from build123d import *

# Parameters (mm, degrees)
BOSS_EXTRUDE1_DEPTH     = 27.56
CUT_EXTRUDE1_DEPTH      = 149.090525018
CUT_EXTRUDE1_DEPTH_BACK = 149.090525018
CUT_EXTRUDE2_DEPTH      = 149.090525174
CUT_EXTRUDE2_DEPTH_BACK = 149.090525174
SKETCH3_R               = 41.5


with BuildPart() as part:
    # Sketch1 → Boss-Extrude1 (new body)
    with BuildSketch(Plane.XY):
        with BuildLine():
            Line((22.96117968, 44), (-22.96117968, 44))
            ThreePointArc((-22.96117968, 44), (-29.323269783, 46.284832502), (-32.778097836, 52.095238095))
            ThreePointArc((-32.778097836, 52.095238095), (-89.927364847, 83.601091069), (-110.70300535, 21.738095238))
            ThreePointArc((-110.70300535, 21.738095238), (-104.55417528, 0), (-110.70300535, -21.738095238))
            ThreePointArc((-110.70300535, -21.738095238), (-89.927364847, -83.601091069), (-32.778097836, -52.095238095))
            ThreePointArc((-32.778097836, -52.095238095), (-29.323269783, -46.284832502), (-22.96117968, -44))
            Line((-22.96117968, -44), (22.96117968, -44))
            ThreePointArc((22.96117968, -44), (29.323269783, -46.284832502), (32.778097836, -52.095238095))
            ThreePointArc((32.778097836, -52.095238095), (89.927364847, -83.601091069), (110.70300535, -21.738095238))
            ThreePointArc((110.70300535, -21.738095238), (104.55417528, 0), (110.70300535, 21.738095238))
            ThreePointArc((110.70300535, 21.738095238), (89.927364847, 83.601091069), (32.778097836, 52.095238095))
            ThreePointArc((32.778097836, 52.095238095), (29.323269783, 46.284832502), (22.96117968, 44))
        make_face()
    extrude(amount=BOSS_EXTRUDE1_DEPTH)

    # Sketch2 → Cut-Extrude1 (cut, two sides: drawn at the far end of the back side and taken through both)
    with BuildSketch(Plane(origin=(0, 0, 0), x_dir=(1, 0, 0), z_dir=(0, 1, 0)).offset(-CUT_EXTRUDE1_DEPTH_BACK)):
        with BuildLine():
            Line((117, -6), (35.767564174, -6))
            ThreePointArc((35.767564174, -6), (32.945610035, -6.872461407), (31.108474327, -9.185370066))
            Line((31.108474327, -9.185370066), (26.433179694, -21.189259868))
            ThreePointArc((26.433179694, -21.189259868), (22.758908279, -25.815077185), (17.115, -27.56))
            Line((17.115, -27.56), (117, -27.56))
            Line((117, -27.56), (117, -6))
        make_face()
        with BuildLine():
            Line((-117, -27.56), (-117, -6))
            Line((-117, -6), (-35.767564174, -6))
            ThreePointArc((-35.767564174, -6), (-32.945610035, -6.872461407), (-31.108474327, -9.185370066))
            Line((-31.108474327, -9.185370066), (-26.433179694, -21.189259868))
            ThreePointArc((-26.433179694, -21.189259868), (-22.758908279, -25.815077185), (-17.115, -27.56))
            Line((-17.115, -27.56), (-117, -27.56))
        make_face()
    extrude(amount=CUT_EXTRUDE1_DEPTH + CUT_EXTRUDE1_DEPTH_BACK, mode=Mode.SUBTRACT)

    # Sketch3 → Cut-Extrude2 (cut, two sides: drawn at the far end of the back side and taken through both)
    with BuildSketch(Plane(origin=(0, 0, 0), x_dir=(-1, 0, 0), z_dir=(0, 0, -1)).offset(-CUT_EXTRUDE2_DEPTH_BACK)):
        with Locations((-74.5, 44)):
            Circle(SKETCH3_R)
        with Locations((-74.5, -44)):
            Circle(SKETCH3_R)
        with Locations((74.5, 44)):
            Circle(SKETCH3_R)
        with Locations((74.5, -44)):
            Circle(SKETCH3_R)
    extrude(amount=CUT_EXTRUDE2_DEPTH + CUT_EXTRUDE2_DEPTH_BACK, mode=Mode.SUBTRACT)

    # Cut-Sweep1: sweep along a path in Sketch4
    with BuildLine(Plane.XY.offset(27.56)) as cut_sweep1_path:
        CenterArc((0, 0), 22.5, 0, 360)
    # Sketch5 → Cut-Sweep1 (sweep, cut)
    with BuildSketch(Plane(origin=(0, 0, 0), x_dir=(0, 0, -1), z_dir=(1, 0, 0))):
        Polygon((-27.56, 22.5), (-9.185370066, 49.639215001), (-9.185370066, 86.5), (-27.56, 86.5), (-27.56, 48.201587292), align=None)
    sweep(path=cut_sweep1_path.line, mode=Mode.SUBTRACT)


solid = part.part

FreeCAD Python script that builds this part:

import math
import FreeCAD as App
import Part
import Sketcher
Q = App.Units.Quantity


def add_polygon(sketch, points):
    """Adds a closed chain of lines whose ends are joined by coincident constraints."""
    first, n = sketch.GeometryCount, len(points)
    for a, b in zip(points, points[1:] + points[:1]):
        sketch.addGeometry(Part.LineSegment(App.Vector(*a, 0), App.Vector(*b, 0)), False)
    for i in range(n):
        sketch.addConstraint(Sketcher.Constraint("Coincident", first + i, 2, first + (i + 1) % n, 1))

doc = App.newDocument("Part")
body = doc.addObject("PartDesign::Body", "Body")

# Sketch on XY plane
sketch1 = body.newObject("Sketcher::SketchObject", "Sketch")
sketch1.AttachmentSupport = (doc.getObject("XY_Plane"), [""])
sketch1.MapMode = "FlatFace"
sketch1.addGeometry([
    Part.LineSegment(App.Vector(23, 44, 0), App.Vector(-23, 44, 0)),  # 0
    Part.ArcOfCircle(Part.Circle(App.Vector(-23, 54, 0), App.Vector(0, 0, 1), 10), math.radians(-169), math.radians(-90)),  # 1
    Part.ArcOfCircle(Part.Circle(App.Vector(-74, 44, 0), App.Vector(0, 0, 1), 42), math.radians(11), math.radians(212)),  # 2
    Part.ArcOfCircle(Part.Circle(App.Vector(-146, 0, 0), App.Vector(0, 0, 1), 42), math.radians(-32), math.radians(32)),  # 3
    Part.ArcOfCircle(Part.Circle(App.Vector(-74, -44, 0), App.Vector(0, 0, 1), 42), math.radians(148), math.radians(349)),  # 4
    Part.ArcOfCircle(Part.Circle(App.Vector(-23, -54, 0), App.Vector(0, 0, 1), 10), math.radians(90), math.radians(169)),  # 5
    Part.LineSegment(App.Vector(-23, -44, 0), App.Vector(23, -44, 0)),  # 6
    Part.ArcOfCircle(Part.Circle(App.Vector(23, -54, 0), App.Vector(0, 0, 1), 10), math.radians(11), math.radians(90)),  # 7
    Part.ArcOfCircle(Part.Circle(App.Vector(74, -44, 0), App.Vector(0, 0, 1), 42), math.radians(-169), math.radians(32)),  # 8
    Part.ArcOfCircle(Part.Circle(App.Vector(146, 0, 0), App.Vector(0, 0, 1), 42), math.radians(148), math.radians(212)),  # 9
    Part.ArcOfCircle(Part.Circle(App.Vector(74, 44, 0), App.Vector(0, 0, 1), 42), math.radians(-32), math.radians(169)),  # 10
    Part.ArcOfCircle(Part.Circle(App.Vector(23, 54, 0), App.Vector(0, 0, 1), 10), math.radians(-90), math.radians(-11)),  # 11
], False)
sketch1.addConstraint([
    Sketcher.Constraint("Tangent", 0, 2, 1, 2),
    Sketcher.Constraint("Tangent", 1, 1, 2, 1),
    Sketcher.Constraint("Tangent", 2, 2, 3, 2),
    Sketcher.Constraint("Tangent", 3, 1, 4, 1),
    Sketcher.Constraint("Tangent", 4, 2, 5, 2),
    Sketcher.Constraint("Tangent", 5, 1, 6, 1),
    Sketcher.Constraint("Tangent", 6, 2, 7, 2),
    Sketcher.Constraint("Tangent", 7, 1, 8, 1),
    Sketcher.Constraint("Tangent", 8, 2, 9, 2),
    Sketcher.Constraint("Tangent", 9, 1, 10, 1),
    Sketcher.Constraint("Tangent", 10, 2, 11, 2),
    Sketcher.Constraint("Tangent", 11, 1, 0, 1),
    Sketcher.Constraint("Horizontal", 0),
    Sketcher.Constraint("Horizontal", 6),
    Sketcher.Constraint("Equal", 2, 4),
    Sketcher.Constraint("Equal", 1, 5),
    Sketcher.Constraint("Equal", 5, 7),
    Sketcher.Constraint("Equal", 4, 8),
    Sketcher.Constraint("Equal", 3, 9),
    Sketcher.Constraint("Equal", 8, 10),
    Sketcher.Constraint("Equal", 7, 11),
    Sketcher.Constraint("Symmetric", 1, 3, 7, 3, -1, 1),
    Sketcher.Constraint("Symmetric", 3, 3, 9, 3, -1, 1),
    Sketcher.Constraint("Symmetric", 4, 3, 8, 3, -2),
    Sketcher.Constraint("Horizontal", 2, 3, 10, 3),
    Sketcher.Constraint("Horizontal", 10, 3, 0, 2),
    Sketcher.Constraint("Radius", 1, Q("10 mm")),
    Sketcher.Constraint("Radius", 2, Q("42.5 mm")),
    Sketcher.Constraint("Radius", 3, Q("41.5 mm")),
    Sketcher.Constraint("DistanceY", -1, 1, 1, 3, Q("54 mm")),
    Sketcher.Constraint("DistanceX", 4, 3, 8, 3, Q("149 mm")),
])
pad1 = body.newObject("PartDesign::Pad", "Pad")
pad1.Profile = sketch1
pad1.Length = 27.56

# Sketch on XZ plane
sketch2 = body.newObject("Sketcher::SketchObject", "Sketch001")
sketch2.AttachmentSupport = (doc.getObject("XZ_Plane"), [""])
sketch2.MapMode = "FlatFace"
sketch2.addGeometry([
    Part.LineSegment(App.Vector(117, 6, 0), App.Vector(36, 6, 0)),  # 0
    Part.ArcOfCircle(Part.Circle(App.Vector(36, 11, 0), App.Vector(0, 0, 1), 5), math.radians(-159), math.radians(-90)),  # 1
    Part.LineSegment(App.Vector(31, 9, 0), App.Vector(26, 21, 0)),  # 2
    Part.ArcOfCircle(Part.Circle(App.Vector(17, 18, 0), App.Vector(0, 0, 1), 10), math.radians(21), math.radians(90)),  # 3
    Part.LineSegment(App.Vector(17, 28, 0), App.Vector(117, 28, 0)),  # 4
    Part.LineSegment(App.Vector(117, 28, 0), App.Vector(117, 6, 0)),  # 5
    Part.LineSegment(App.Vector(-117, 6, 0), App.Vector(-117, 28, 0)),  # 6
    Part.LineSegment(App.Vector(-117, 28, 0), App.Vector(-17, 28, 0)),  # 7
    Part.ArcOfCircle(Part.Circle(App.Vector(-17, 18, 0), App.Vector(0, 0, 1), 10), math.radians(90), math.radians(159)),  # 8
    Part.LineSegment(App.Vector(-26, 21, 0), App.Vector(-31, 9, 0)),  # 9
    Part.ArcOfCircle(Part.Circle(App.Vector(-36, 11, 0), App.Vector(0, 0, 1), 5), math.radians(-90), math.radians(-21)),  # 10
    Part.LineSegment(App.Vector(-36, 6, 0), App.Vector(-117, 6, 0)),  # 11
], False)
sketch2.addConstraint([
    Sketcher.Constraint("Tangent", 0, 2, 1, 2),
    Sketcher.Constraint("Tangent", 1, 1, 2, 1),
    Sketcher.Constraint("Tangent", 2, 2, 3, 1),
    Sketcher.Constraint("Tangent", 3, 2, 4, 1),
    Sketcher.Constraint("Coincident", 4, 2, 5, 1),
    Sketcher.Constraint("Coincident", 5, 2, 0, 1),
    Sketcher.Constraint("Coincident", 6, 2, 7, 1),
    Sketcher.Constraint("Tangent", 7, 2, 8, 1),
    Sketcher.Constraint("Tangent", 8, 2, 9, 1),
    Sketcher.Constraint("Tangent", 9, 2, 10, 2),
    Sketcher.Constraint("Tangent", 10, 1, 11, 1),
    Sketcher.Constraint("Coincident", 11, 2, 6, 1),
    Sketcher.Constraint("Horizontal", 0),
    Sketcher.Constraint("Horizontal", 4),
    Sketcher.Constraint("Vertical", 5),
    Sketcher.Constraint("Vertical", 6),
    Sketcher.Constraint("Horizontal", 7),
    Sketcher.Constraint("Horizontal", 11),
    Sketcher.Constraint("Equal", 3, 8),
    Sketcher.Constraint("Equal", 1, 10),
    Sketcher.Constraint("Symmetric", 3, 3, 8, 3, -2),
    Sketcher.Constraint("Symmetric", 1, 3, 10, 3, -2),
    Sketcher.Constraint("Equal", 4, 7),
    Sketcher.Constraint("Radius", 1, Q("5 mm")),
    Sketcher.Constraint("Radius", 3, Q("10 mm")),
    Sketcher.Constraint("DistanceY", -1, 1, 1, 3, Q("11 mm")),
    Sketcher.Constraint("DistanceX", -1, 1, 4, 2, Q("117 mm")),
    Sketcher.Constraint("DistanceY", 5, 2, 5, 1, Q("21.56 mm")),
    Sketcher.Constraint("Angle", 2, Q("111.28 deg")),
    Sketcher.Constraint("DistanceX", 4, 1, 4, 2, Q("99.885 mm")),
])
pocket1 = body.newObject("PartDesign::Pocket", "Pocket")
pocket1.Profile = sketch2
pocket1.Type = "ThroughAll"
pocket1.Midplane = True

# Sketch on XY plane
sketch3 = body.newObject("Sketcher::SketchObject", "Sketch002")
sketch3.AttachmentSupport = (doc.getObject("XY_Plane"), [""])
sketch3.MapMode = "FlatFace"
sketch3.addGeometry([
    Part.Circle(App.Vector(74, 44, 0), App.Vector(0, 0, 1), 42),
    Part.Circle(App.Vector(74, -44, 0), App.Vector(0, 0, 1), 42),
    Part.Circle(App.Vector(-74, 44, 0), App.Vector(0, 0, 1), 42),
    Part.Circle(App.Vector(-74, -44, 0), App.Vector(0, 0, 1), 42),
], False)
sketch3.addConstraint([
    Sketcher.Constraint("Equal", 0, 1),
    Sketcher.Constraint("Equal", 1, 2),
    Sketcher.Constraint("Equal", 2, 3),
    Sketcher.Constraint("Symmetric", 1, 3, 2, 3, -1, 1),
    Sketcher.Constraint("Symmetric", 0, 3, 3, 3, -1, 1),
    Sketcher.Constraint("Symmetric", 0, 3, 2, 3, -2),
    Sketcher.Constraint("Diameter", 0, Q("83 mm")),
    Sketcher.Constraint("DistanceY", -1, 1, 0, 3, Q("44 mm")),
    Sketcher.Constraint("DistanceX", 2, 3, 0, 3, Q("149 mm")),
])
pocket2 = body.newObject("PartDesign::Pocket", "Pocket001")
pocket2.Profile = sketch3
pocket2.Type = "ThroughAll"
pocket2.Midplane = True

# Sketch on YZ plane
sketch4 = body.newObject("Sketcher::SketchObject", "Sketch003")
sketch4.AttachmentSupport = (doc.getObject("YZ_Plane"), [""])
sketch4.MapMode = "FlatFace"
add_polygon(sketch4, [(22, 28), (50, 9), (86, 9), (86, 28)])  # lines 0-3
sketch4.addConstraint([
    Sketcher.Constraint("Horizontal", 1),
    Sketcher.Constraint("Vertical", 2),
    Sketcher.Constraint("Horizontal", 3),
    Sketcher.Constraint("DistanceX", 3, 2, 3, 1, Q("64 mm")),
    Sketcher.Constraint("Angle", 0, Q("-34.1 deg")),
    Sketcher.Constraint("DistanceX", -1, 1, 1, 2, Q("86.5 mm")),
    Sketcher.Constraint("DistanceY", -1, 1, 2, 2, Q("27.56 mm")),
    Sketcher.Constraint("DistanceY", 2, 1, 2, 2, Q("18.37463 mm")),
])

# Sketch on XY plane
sketch5 = body.newObject("Sketcher::SketchObject", "Sketch004")
sketch5.AttachmentSupport = (doc.getObject("XY_Plane"), [""])
sketch5.MapMode = "FlatFace"
sketch5.AttachmentOffset = App.Placement(App.Vector(0, 0, 27.56), App.Rotation())
sketch5.addGeometry(Part.Circle(App.Vector(0, 0, 0), App.Vector(0, 0, 1), 22), False)
sketch5.addConstraint([
    Sketcher.Constraint("Coincident", 0, 3, -1, 1),
    Sketcher.Constraint("Diameter", 0, Q("45 mm")),
])
doc.recompute()

subtractivepipe = body.newObject("PartDesign::SubtractivePipe", "SubtractivePipe")
subtractivepipe.Profile = sketch4
subtractivepipe.Spine = (sketch5, ["Edge1"])

doc.recompute()
